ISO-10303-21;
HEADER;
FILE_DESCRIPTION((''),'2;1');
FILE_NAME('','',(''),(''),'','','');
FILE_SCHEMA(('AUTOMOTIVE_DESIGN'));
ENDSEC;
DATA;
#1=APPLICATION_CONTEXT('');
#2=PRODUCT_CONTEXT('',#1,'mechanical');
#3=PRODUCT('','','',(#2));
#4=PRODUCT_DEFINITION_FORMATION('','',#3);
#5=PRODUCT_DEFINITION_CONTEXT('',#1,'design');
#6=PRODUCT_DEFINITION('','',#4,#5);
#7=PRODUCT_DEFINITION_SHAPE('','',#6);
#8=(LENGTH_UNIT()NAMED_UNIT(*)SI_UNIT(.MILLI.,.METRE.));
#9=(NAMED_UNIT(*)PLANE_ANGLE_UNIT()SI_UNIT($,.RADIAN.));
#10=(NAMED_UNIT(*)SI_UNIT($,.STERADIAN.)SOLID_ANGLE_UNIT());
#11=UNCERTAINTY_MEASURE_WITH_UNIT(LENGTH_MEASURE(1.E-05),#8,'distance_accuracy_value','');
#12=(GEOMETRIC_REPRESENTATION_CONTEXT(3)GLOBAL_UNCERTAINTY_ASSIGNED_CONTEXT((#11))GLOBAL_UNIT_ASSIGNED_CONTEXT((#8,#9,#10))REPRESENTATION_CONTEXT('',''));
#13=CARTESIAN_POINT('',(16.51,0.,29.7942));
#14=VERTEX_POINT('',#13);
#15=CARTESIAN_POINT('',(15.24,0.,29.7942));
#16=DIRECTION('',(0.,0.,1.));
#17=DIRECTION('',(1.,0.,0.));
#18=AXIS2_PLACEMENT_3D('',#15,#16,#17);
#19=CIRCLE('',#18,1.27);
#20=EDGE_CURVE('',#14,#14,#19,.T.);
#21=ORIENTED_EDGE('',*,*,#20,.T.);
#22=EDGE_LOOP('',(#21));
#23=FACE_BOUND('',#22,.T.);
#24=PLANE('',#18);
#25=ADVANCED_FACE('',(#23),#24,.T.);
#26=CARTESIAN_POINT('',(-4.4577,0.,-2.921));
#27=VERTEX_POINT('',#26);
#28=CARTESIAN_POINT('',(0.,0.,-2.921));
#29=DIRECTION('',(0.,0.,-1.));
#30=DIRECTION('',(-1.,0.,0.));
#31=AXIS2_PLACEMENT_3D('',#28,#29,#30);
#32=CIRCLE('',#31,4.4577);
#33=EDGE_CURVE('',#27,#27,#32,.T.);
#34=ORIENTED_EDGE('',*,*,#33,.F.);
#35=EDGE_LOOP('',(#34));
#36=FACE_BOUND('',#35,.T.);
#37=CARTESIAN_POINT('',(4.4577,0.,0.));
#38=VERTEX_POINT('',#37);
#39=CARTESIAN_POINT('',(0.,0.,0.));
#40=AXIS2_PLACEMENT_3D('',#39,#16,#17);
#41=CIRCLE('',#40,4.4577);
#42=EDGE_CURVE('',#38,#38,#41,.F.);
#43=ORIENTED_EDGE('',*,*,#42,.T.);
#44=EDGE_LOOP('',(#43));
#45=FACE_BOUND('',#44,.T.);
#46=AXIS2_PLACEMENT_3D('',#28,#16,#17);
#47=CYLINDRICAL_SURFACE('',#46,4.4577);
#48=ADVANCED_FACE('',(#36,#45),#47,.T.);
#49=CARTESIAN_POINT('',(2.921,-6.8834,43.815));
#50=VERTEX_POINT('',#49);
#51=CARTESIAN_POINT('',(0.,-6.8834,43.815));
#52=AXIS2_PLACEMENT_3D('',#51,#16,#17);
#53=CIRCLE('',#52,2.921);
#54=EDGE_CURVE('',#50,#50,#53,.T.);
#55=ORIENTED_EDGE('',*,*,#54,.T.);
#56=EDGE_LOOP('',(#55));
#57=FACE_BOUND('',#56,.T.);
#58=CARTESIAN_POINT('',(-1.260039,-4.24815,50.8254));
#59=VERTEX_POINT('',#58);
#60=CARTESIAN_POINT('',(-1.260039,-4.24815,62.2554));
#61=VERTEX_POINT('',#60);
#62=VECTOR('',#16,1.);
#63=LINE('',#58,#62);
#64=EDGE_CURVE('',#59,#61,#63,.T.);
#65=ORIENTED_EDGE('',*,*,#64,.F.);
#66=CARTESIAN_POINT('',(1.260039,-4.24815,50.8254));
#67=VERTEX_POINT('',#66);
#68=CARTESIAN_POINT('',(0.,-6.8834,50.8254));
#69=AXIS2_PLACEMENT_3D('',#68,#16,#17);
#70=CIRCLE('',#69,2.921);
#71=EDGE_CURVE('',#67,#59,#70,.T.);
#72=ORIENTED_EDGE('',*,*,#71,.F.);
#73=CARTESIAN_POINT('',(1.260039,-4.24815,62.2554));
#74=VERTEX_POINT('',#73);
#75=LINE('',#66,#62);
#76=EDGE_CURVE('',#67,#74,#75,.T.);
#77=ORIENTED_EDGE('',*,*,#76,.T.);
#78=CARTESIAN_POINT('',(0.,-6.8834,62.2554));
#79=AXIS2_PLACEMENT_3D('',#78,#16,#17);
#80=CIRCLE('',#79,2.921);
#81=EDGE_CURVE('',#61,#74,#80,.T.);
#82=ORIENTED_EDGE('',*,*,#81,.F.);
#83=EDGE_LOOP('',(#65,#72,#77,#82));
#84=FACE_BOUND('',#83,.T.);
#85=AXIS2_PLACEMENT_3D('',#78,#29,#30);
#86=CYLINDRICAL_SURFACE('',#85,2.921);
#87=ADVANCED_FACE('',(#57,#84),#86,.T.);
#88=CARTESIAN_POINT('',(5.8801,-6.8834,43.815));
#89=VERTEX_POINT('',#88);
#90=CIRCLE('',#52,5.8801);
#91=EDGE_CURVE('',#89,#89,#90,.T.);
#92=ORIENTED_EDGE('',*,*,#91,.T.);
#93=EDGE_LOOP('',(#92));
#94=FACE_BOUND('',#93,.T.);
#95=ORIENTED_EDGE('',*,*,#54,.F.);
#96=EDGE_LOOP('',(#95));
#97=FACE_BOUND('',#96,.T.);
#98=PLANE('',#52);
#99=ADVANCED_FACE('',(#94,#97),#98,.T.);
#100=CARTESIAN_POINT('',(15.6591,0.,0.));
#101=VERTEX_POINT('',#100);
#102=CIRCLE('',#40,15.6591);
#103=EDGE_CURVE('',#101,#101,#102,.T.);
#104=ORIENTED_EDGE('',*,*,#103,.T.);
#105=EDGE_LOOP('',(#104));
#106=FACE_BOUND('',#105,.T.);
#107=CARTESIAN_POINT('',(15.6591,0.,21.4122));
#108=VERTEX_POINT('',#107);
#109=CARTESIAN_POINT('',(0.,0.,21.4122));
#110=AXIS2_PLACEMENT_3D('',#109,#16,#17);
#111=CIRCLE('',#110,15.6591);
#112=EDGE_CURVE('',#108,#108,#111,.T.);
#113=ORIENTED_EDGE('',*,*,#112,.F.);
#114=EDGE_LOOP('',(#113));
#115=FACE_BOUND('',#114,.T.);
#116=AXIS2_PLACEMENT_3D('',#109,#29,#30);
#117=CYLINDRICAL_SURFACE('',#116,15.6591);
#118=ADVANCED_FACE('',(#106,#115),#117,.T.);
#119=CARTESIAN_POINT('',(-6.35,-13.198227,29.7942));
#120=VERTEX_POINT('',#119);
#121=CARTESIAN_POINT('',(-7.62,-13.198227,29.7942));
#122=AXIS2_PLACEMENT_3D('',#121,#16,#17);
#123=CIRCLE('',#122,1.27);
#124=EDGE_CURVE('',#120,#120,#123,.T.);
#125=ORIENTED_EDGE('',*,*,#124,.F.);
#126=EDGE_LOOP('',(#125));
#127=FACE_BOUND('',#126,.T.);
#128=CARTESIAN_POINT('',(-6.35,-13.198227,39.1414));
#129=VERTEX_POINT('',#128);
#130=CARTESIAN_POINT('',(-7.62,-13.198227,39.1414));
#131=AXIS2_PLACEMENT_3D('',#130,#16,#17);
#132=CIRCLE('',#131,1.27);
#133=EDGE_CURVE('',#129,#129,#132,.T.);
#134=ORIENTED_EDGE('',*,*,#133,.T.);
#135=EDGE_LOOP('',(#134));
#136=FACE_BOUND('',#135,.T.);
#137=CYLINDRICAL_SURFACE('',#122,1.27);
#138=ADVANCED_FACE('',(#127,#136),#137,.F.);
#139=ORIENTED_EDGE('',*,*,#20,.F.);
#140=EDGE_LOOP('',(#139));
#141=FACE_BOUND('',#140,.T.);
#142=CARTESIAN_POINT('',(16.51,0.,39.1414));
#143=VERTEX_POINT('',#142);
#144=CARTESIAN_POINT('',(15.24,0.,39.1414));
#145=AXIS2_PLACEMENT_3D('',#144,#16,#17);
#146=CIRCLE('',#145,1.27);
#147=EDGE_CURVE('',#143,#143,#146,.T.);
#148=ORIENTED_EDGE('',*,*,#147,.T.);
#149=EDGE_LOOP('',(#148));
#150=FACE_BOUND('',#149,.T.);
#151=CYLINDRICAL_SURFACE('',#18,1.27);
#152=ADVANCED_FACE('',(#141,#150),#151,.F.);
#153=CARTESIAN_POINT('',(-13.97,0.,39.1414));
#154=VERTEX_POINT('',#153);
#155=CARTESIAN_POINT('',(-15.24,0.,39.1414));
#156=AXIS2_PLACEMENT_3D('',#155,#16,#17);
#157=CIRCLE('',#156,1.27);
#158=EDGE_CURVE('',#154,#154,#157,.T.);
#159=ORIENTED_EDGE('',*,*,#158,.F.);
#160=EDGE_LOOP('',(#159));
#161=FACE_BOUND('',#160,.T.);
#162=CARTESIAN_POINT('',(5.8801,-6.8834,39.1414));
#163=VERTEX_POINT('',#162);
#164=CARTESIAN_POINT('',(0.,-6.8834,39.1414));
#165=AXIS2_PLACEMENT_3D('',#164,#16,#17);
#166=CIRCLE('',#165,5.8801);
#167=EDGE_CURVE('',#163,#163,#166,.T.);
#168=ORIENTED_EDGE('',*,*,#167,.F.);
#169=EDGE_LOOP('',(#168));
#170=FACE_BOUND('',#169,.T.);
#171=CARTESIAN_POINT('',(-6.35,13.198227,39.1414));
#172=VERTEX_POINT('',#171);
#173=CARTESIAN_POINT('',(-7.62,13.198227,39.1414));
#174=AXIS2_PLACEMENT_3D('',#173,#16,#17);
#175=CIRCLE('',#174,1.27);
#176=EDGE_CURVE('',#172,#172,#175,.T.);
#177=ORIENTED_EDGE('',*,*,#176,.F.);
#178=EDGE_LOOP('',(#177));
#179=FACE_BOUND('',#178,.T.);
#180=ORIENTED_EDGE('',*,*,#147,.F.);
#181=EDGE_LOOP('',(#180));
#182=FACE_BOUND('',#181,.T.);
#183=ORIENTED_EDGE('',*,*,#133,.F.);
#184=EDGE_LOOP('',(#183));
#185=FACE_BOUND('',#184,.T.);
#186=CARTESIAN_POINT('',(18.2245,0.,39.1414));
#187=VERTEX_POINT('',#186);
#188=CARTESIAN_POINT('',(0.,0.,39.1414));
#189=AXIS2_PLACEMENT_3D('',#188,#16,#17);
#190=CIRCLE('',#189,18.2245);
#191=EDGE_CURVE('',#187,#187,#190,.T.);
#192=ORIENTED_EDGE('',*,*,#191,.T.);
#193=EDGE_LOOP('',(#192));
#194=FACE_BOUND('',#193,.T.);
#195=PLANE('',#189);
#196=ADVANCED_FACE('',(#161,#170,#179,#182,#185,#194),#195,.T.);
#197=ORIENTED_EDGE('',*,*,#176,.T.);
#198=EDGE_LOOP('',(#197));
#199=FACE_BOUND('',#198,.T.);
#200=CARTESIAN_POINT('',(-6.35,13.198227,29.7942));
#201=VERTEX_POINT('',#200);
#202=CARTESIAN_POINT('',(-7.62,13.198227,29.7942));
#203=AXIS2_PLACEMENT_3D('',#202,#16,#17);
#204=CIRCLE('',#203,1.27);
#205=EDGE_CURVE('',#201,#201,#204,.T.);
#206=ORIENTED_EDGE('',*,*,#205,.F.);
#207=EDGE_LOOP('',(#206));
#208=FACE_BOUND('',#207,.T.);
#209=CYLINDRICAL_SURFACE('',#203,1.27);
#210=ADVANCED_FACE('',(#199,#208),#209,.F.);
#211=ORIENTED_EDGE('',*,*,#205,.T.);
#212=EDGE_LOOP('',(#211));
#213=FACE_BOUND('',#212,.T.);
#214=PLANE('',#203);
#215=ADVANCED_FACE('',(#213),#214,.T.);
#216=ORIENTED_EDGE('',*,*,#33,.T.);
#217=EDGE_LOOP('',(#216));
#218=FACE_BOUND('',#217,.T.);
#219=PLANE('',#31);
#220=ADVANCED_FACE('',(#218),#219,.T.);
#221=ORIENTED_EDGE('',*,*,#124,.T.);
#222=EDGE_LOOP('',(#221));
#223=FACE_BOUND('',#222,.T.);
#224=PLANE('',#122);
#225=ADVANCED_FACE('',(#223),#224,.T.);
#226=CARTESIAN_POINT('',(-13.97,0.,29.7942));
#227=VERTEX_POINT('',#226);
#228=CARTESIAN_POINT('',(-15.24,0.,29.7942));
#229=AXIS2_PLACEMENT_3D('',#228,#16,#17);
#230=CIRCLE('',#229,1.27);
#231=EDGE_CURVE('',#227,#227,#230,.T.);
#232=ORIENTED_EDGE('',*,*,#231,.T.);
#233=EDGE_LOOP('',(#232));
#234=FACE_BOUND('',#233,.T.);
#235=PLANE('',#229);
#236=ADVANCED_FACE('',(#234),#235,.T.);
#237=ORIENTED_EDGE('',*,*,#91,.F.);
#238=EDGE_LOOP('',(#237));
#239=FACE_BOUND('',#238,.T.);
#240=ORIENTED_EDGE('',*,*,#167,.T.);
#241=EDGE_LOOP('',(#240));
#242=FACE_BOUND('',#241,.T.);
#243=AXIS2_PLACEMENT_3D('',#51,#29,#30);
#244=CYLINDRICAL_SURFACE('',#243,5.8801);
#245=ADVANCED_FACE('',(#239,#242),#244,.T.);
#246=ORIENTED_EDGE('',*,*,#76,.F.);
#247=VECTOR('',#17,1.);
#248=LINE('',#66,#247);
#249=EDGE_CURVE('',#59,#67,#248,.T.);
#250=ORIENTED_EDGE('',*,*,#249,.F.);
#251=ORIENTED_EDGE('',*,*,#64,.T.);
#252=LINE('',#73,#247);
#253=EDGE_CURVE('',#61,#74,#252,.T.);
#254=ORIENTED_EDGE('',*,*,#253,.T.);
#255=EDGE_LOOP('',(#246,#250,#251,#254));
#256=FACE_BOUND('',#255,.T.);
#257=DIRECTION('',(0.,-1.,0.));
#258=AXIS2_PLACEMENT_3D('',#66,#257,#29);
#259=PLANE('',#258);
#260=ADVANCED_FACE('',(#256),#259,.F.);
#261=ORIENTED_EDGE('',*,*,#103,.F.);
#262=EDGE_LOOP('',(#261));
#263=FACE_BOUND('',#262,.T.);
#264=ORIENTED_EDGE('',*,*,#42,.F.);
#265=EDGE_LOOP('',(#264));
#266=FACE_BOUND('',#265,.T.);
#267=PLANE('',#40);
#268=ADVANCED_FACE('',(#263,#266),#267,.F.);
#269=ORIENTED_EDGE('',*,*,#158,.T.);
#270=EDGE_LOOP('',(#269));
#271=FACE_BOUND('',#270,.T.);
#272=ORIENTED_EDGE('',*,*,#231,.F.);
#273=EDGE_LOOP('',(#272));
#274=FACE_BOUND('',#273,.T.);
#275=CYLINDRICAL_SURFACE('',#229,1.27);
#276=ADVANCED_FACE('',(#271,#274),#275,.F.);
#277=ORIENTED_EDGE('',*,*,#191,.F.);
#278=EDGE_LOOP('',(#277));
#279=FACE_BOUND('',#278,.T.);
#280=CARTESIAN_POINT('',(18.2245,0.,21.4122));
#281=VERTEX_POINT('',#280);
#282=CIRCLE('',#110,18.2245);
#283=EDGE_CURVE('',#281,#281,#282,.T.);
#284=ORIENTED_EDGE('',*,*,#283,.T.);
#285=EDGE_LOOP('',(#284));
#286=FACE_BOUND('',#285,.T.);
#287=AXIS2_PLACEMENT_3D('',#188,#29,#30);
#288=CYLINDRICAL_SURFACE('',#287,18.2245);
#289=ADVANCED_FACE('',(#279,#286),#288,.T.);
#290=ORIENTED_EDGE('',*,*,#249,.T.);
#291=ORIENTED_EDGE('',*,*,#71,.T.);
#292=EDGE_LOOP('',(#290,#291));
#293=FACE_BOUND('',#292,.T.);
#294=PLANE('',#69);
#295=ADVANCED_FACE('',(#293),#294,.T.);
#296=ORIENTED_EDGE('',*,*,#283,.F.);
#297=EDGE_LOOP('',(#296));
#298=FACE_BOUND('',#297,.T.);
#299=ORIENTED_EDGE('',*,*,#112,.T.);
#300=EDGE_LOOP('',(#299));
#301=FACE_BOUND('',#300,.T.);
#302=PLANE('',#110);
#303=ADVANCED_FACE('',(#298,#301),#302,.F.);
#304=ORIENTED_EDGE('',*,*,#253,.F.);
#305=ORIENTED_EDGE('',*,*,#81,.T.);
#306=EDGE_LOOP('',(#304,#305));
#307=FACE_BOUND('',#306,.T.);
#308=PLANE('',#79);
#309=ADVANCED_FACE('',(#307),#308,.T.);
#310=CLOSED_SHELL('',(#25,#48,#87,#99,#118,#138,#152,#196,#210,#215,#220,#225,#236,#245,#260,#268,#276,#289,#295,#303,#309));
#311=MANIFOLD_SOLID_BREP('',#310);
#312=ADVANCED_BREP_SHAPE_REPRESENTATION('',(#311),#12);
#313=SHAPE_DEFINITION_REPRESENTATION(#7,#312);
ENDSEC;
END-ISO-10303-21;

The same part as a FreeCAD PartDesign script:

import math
import FreeCAD as App
import Part
import Sketcher

V = App.Vector
Q = App.Units.Quantity

doc = App.newDocument("Part")
body = doc.addObject("PartDesign::Body", "Body")

sketch1 = body.newObject("Sketcher::SketchObject", "Sketch")
sketch1.AttachmentSupport = (doc.getObject("XY_Plane"), [""])
sketch1.MapMode = "FlatFace"
sketch1.addGeometry(Part.Circle(V(0, 0, 0), V(0, 0, 1), 15.6591), False)
sketch1.addConstraint([
    Sketcher.Constraint("Coincident", 0, 3, -1, 1),
    Sketcher.Constraint("Diameter", 0, Q("1.233 in")),
])
pad1 = body.newObject("PartDesign::Pad", "Pad")
pad1.Profile = sketch1
pad1.Length = Q("0.843 in")

sketch2 = body.newObject("Sketcher::SketchObject", "Sketch001")
sketch2.AttachmentSupport = (doc.getObject("XY_Plane"), [""])
sketch2.MapMode = "FlatFace"
sketch2.AttachmentOffset = App.Placement(V(0, 0, 0.843 * 25.4), App.Rotation())
sketch2.addGeometry(Part.Circle(V(0, 0, 0), V(0, 0, 1), 18.2245), False)
sketch2.addConstraint([
    Sketcher.Constraint("Coincident", 0, 3, -1, 1),
    Sketcher.Constraint("Diameter", 0, Q("1.435 in")),
])
pad2 = body.newObject("PartDesign::Pad", "Pad001")
pad2.Profile = sketch2
pad2.Length = Q("0.698 in")

sketch3 = body.newObject("Sketcher::SketchObject", "Sketch002")
sketch3.AttachmentSupport = (doc.getObject("XY_Plane"), [""])
sketch3.MapMode = "FlatFace"
sketch3.AttachmentOffset = App.Placement(V(0, 0, 1.541 * 25.4), App.Rotation())
sketch3.addGeometry(Part.Circle(V(0, -6.8834, 0), V(0, 0, 1), 5.8801), False)
sketch3.addConstraint([
    Sketcher.Constraint("PointOnObject", 0, 3, -2),
    Sketcher.Constraint("Diameter", 0, Q("0.463 in")),
    Sketcher.Constraint("DistanceY", 0, 3, -1, 1, Q("0.271 in")),
])
pad3 = body.newObject("PartDesign::Pad", "Pad002")
pad3.Profile = sketch3
pad3.Length = Q("0.184 in")

sketch4 = body.newObject("Sketcher::SketchObject", "Sketch003")
sketch4.AttachmentSupport = (doc.getObject("XY_Plane"), [""])
sketch4.MapMode = "FlatFace"
sketch4.AttachmentOffset = App.Placement(V(0, 0, 1.725 * 25.4), App.Rotation())
sketch4.addGeometry(Part.Circle(V(0, -6.8834, 0), V(0, 0, 1), 2.921), False)
sketch4.addConstraint([
    Sketcher.Constraint("PointOnObject", 0, 3, -2),
    Sketcher.Constraint("Diameter", 0, Q("0.23 in")),
    Sketcher.Constraint("DistanceY", 0, 3, -1, 1, Q("0.271 in")),
])
pad4 = body.newObject("PartDesign::Pad", "Pad003")
pad4.Profile = sketch4
pad4.Length = Q("0.726 in")

sketch5 = body.newObject("Sketcher::SketchObject", "Sketch004")
sketch5.AttachmentSupport = (doc.getObject("XY_Plane"), [""])
sketch5.MapMode = "FlatFace"
sketch5.AttachmentOffset = App.Placement(V(0, 0, 1.541 * 25.4), App.Rotation())
sketch5.addGeometry([
    Part.Circle(V(15.24, 0, 0), V(0, 0, 1), 1.27),
    Part.Circle(V(-15.24, 0, 0), V(0, 0, 1), 1.27),
    Part.Circle(V(-7.62, -13.198227, 0), V(0, 0, 1), 1.27),
    Part.Circle(V(-7.62, 13.198227, 0), V(0, 0, 1), 1.27),
], False)
sketch5.addConstraint([
    Sketcher.Constraint("Equal", 0, 1),
    Sketcher.Constraint("Equal", 1, 2),
    Sketcher.Constraint("Equal", 2, 3),
    Sketcher.Constraint("Symmetric", 0, 3, 1, 3, -1, 1),
    Sketcher.Constraint("Symmetric", 2, 3, 3, 3, -1),
    Sketcher.Constraint("PointOnObject", 0, 3, -1),
    Sketcher.Constraint("Diameter", 0, Q("0.1 in")),
    Sketcher.Constraint("DistanceX", -1, 1, 0, 3, Q("0.6 in")),
    Sketcher.Constraint("DistanceX", 2, 3, -1, 1, Q("0.3 in")),
    Sketcher.Constraint("DistanceY", 2, 3, -1, 1, 13.198227),
])
pocket1 = body.newObject("PartDesign::Pocket", "Pocket")
pocket1.Profile = sketch5
pocket1.Length = Q("0.368 in")

sketch6 = body.newObject("Sketcher::SketchObject", "Sketch005")
sketch6.AttachmentSupport = (doc.getObject("XY_Plane"), [""])
sketch6.MapMode = "FlatFace"
sketch6.addGeometry(Part.Circle(V(0, 0, 0), V(0, 0, 1), 4.4577), False)
sketch6.addConstraint([
    Sketcher.Constraint("Coincident", 0, 3, -1, 1),
    Sketcher.Constraint("Diameter", 0, Q("0.351 in")),
])
pad5 = body.newObject("PartDesign::Pad", "Pad004")
pad5.Profile = sketch6
pad5.Length = Q("0.115 in")
pad5.Reversed = True

sketch7 = body.newObject("Sketcher::SketchObject", "Sketch006")
sketch7.AttachmentSupport = (doc.getObject("XY_Plane"), [""])
sketch7.MapMode = "FlatFace"
sketch7.AttachmentOffset = App.Placement(V(0, 0, 2.451 * 25.4), App.Rotation())
sketch7.addGeometry([
    Part.LineSegment(V(-1.260039, -4.24815, 0), V(1.260039, -4.24815, 0)),
    Part.ArcOfCircle(Part.Circle(V(0, -6.8834, 0), V(0, 0, 1), 2.921), math.radians(64.445306), math.radians(115.554694)),
], False)
sketch7.addConstraint([
    Sketcher.Constraint("Coincident", 0, 1, 1, 2),
    Sketcher.Constraint("Coincident", 1, 1, 0, 2),
    Sketcher.Constraint("Horizontal", 0),
    Sketcher.Constraint("PointOnObject", 1, 3, -2),
    Sketcher.Constraint("Radius", 1, Q("0.115 in")),
    Sketcher.Constraint("DistanceY", 1, 3, -1, 1, Q("0.271 in")),
    Sketcher.Constraint("DistanceX", 0, 1, 0, 2, 2.520078),
])
pocket2 = body.newObject("PartDesign::Pocket", "Pocket001")
pocket2.Profile = sketch7
pocket2.Length = Q("0.45 in")

doc.recompute()
